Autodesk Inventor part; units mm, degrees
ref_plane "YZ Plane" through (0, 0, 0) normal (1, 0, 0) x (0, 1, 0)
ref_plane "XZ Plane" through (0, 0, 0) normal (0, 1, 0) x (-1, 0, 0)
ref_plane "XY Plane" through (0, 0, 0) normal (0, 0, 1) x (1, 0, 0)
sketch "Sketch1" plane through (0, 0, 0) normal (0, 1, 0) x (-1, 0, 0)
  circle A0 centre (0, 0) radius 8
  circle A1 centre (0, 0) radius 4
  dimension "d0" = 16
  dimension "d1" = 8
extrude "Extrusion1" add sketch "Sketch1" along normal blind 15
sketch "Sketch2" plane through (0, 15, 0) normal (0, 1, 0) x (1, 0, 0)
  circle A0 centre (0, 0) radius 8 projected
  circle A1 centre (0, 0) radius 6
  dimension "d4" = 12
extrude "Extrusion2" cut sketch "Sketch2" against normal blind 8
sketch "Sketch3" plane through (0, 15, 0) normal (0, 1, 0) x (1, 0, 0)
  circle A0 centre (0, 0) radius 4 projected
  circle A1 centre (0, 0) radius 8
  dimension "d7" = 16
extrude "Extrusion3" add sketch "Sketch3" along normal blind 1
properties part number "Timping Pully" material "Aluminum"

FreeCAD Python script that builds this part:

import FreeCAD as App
import Part
import Sketcher
from FreeCAD import Vector
Q = App.Units.Quantity

doc = App.newDocument("Part")
body = doc.addObject("PartDesign::Body", "Body")

# Sketch on XZ plane
sketch1 = body.newObject("Sketcher::SketchObject", "Sketch")
sketch1.AttachmentSupport = (doc.getObject("XZ_Plane"), [""])
sketch1.MapMode = "FlatFace"
sketch1.addGeometry(Part.Circle(Vector(0, 0, 0), Vector(0, 0, 1), 8), False)
sketch1.addGeometry(Part.Circle(Vector(0, 0, 0), Vector(0, 0, 1), 4), False)
sketch1.addConstraint(Sketcher.Constraint("Coincident", 0, 3, -1, 1))
sketch1.addConstraint(Sketcher.Constraint("Coincident", 1, 3, -1, 1))
sketch1.addConstraint(Sketcher.Constraint("Diameter", 0, Q("16 mm")))
sketch1.addConstraint(Sketcher.Constraint("Diameter", 1, Q("8 mm")))
pad1 = body.newObject("PartDesign::Pad", "Pad")
pad1.Profile = sketch1
pad1.Length = 15
pad1.Reversed = True

# Sketch on XZ plane
sketch2 = body.newObject("Sketcher::SketchObject", "Sketch001")
sketch2.AttachmentSupport = (doc.getObject("XZ_Plane"), [""])
sketch2.MapMode = "FlatFace"
sketch2.AttachmentOffset = App.Placement(Vector(0, 0, -15), App.Rotation())
sketch2.addGeometry(Part.Circle(Vector(0, 0, 0), Vector(0, 0, 1), 8), False)
sketch2.addGeometry(Part.Circle(Vector(0, 0, 0), Vector(0, 0, 1), 6), False)
sketch2.addConstraint(Sketcher.Constraint("Coincident", 0, 3, -1, 1))
sketch2.addConstraint(Sketcher.Constraint("Coincident", 1, 3, -1, 1))
sketch2.addConstraint(Sketcher.Constraint("Diameter", 1, Q("12 mm")))
sketch2.addConstraint(Sketcher.Constraint("Diameter", 0, Q("16 mm")))
pocket1 = body.newObject("PartDesign::Pocket", "Pocket")
pocket1.Profile = sketch2
pocket1.Length = 8
pocket1.Reversed = True

# Sketch on XZ plane
sketch3 = body.newObject("Sketcher::SketchObject", "Sketch002")
sketch3.AttachmentSupport = (doc.getObject("XZ_Plane"), [""])
sketch3.MapMode = "FlatFace"
sketch3.AttachmentOffset = App.Placement(Vector(0, 0, -15), App.Rotation())
sketch3.addGeometry(Part.Circle(Vector(0, 0, 0), Vector(0, 0, 1), 8), False)
sketch3.addGeometry(Part.Circle(Vector(0, 0, 0), Vector(0, 0, 1), 4), False)
sketch3.addConstraint(Sketcher.Constraint("Coincident", 0, 3, -1, 1))
sketch3.addConstraint(Sketcher.Constraint("Coincident", 1, 3, -1, 1))
sketch3.addConstraint(Sketcher.Constraint("Diameter", 0, Q("16 mm")))
sketch3.addConstraint(Sketcher.Constraint("Diameter", 1, Q("8 mm")))
pad2 = body.newObject("PartDesign::Pad", "Pad001")
pad2.Profile = sketch3
pad2.Length = 1
pad2.Reversed = True

doc.recompute()
